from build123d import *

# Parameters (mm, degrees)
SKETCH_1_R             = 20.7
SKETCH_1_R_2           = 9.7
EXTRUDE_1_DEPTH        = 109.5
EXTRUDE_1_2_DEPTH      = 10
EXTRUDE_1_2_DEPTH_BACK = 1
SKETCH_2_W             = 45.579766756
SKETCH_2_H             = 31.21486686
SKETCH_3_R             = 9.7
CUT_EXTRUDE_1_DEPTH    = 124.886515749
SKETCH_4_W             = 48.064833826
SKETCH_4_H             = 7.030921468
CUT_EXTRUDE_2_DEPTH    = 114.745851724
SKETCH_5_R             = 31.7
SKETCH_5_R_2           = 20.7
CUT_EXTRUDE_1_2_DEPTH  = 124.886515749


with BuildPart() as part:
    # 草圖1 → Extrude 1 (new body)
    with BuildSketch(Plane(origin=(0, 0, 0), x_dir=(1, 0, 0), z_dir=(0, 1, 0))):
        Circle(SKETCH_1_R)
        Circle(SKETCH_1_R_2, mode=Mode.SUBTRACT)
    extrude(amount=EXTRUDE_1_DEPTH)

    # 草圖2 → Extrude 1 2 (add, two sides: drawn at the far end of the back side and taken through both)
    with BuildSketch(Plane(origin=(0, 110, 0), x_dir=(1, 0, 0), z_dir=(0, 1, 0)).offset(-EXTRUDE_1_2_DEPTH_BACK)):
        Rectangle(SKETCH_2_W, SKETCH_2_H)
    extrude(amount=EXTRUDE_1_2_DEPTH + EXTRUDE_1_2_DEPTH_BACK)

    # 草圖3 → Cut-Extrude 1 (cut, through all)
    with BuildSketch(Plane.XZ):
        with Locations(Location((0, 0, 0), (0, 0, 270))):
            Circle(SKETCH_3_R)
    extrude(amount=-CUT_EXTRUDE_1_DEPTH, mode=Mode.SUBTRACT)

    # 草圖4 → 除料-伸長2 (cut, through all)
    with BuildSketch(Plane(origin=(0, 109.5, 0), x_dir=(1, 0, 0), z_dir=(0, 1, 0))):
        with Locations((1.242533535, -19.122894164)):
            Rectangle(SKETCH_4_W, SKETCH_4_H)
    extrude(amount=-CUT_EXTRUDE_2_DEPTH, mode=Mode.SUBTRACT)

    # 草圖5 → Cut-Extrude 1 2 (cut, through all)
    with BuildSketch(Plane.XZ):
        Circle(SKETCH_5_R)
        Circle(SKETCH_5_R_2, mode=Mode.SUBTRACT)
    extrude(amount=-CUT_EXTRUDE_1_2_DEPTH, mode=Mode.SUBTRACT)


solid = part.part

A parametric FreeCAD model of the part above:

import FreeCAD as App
import Part
import Sketcher
from FreeCAD import Vector

doc = App.newDocument("Part")
body = doc.addObject("PartDesign::Body", "Body")

sketch1 = doc.addObject("Sketcher::SketchObject", "Sketch")
body.addObject(sketch1)
sketch1.AttachmentSupport = (doc.XZ_Plane, [""])
sketch1.MapMode = "FlatFace"
sketch1.addGeometry(Part.Circle(Vector(0, 0, 0), Vector(0, 0, 1), 21), False)
sketch1.addGeometry(Part.Circle(Vector(0, 0, 0), Vector(0, 0, 1), 10), False)
sketch1.addConstraint(Sketcher.Constraint("Coincident", 0, 3, -1, 1))
sketch1.addConstraint(Sketcher.Constraint("Coincident", 1, 3, -1, 1))
sketch1.addConstraint(Sketcher.Constraint("Diameter", 0, 41.4))
sketch1.addConstraint(Sketcher.Constraint("Diameter", 1, 19.4))
pad1 = doc.addObject("PartDesign::Pad", "Pad")
body.addObject(pad1)
pad1.Profile = sketch1
pad1.Length = 109.5
pad1.Reversed = True

sketch2 = doc.addObject("Sketcher::SketchObject", "Sketch001")
body.addObject(sketch2)
sketch2.AttachmentSupport = (doc.XZ_Plane, [""])
sketch2.MapMode = "FlatFace"
sketch2.AttachmentOffset = App.Placement(Vector(0, 0, -110), App.Rotation())
sketch2.addGeometry(Part.LineSegment(Vector(-23, -16, 0), Vector(-23, 16, 0)), False)
sketch2.addGeometry(Part.LineSegment(Vector(-23, 16, 0), Vector(23, 16, 0)), False)
sketch2.addGeometry(Part.LineSegment(Vector(23, 16, 0), Vector(23, -16, 0)), False)
sketch2.addGeometry(Part.LineSegment(Vector(23, -16, 0), Vector(-23, -16, 0)), False)
sketch2.addConstraint(Sketcher.Constraint("Coincident", 0, 2, 1, 1))
sketch2.addConstraint(Sketcher.Constraint("Coincident", 1, 2, 2, 1))
sketch2.addConstraint(Sketcher.Constraint("Coincident", 2, 2, 3, 1))
sketch2.addConstraint(Sketcher.Constraint("Coincident", 3, 2, 0, 1))
sketch2.addConstraint(Sketcher.Constraint("Vertical", 0))
sketch2.addConstraint(Sketcher.Constraint("Horizontal", 1))
sketch2.addConstraint(Sketcher.Constraint("Vertical", 2))
sketch2.addConstraint(Sketcher.Constraint("Horizontal", 3))
sketch2.addConstraint(Sketcher.Constraint("Symmetric", 0, 2, 2, 2, -1, 1))
sketch2.addConstraint(Sketcher.Constraint("DistanceX", 1, 1, 1, 2, 45.579767))
sketch2.addConstraint(Sketcher.Constraint("DistanceY", 0, 1, 0, 2, 31.214867))
pad2 = doc.addObject("PartDesign::Pad", "Pad001")
body.addObject(pad2)
pad2.Profile = sketch2
pad2.Type = "TwoLengths"
pad2.Length = 10
pad2.Length2 = 1
pad2.Reversed = True

sketch3 = doc.addObject("Sketcher::SketchObject", "Sketch002")
body.addObject(sketch3)
sketch3.AttachmentSupport = (doc.XZ_Plane, [""])
sketch3.MapMode = "FlatFace"
sketch3.addGeometry(Part.Circle(Vector(0, 0, 0), Vector(0, 0, 1), 10), False)
sketch3.addConstraint(Sketcher.Constraint("Coincident", 0, 3, -1, 1))
sketch3.addConstraint(Sketcher.Constraint("Diameter", 0, 19.4))
pocket1 = doc.addObject("PartDesign::Pocket", "Pocket")
body.addObject(pocket1)
pocket1.Profile = sketch3
pocket1.Type = "ThroughAll"

sketch4 = doc.addObject("Sketcher::SketchObject", "Sketch003")
body.addObject(sketch4)
sketch4.AttachmentSupport = (doc.XZ_Plane, [""])
sketch4.MapMode = "FlatFace"
sketch4.AttachmentOffset = App.Placement(Vector(0, 0, -109.5), App.Rotation())
sketch4.addGeometry(Part.LineSegment(Vector(-23, 16, 0), Vector(-23, 23, 0)), False)
sketch4.addGeometry(Part.LineSegment(Vector(-23, 23, 0), Vector(25, 23, 0)), False)
sketch4.addGeometry(Part.LineSegment(Vector(25, 23, 0), Vector(25, 16, 0)), False)
sketch4.addGeometry(Part.LineSegment(Vector(25, 16, 0), Vector(-23, 16, 0)), False)
sketch4.addConstraint(Sketcher.Constraint("Coincident", 0, 2, 1, 1))
sketch4.addConstraint(Sketcher.Constraint("Coincident", 1, 2, 2, 1))
sketch4.addConstraint(Sketcher.Constraint("Coincident", 2, 2, 3, 1))
sketch4.addConstraint(Sketcher.Constraint("Coincident", 3, 2, 0, 1))
sketch4.addConstraint(Sketcher.Constraint("Vertical", 0))
sketch4.addConstraint(Sketcher.Constraint("Horizontal", 1))
sketch4.addConstraint(Sketcher.Constraint("Vertical", 2))
sketch4.addConstraint(Sketcher.Constraint("Horizontal", 3))
sketch4.addConstraint(Sketcher.Constraint("DistanceY", 0, 1, 0, 2, 7.030921))
sketch4.addConstraint(Sketcher.Constraint("DistanceX", 1, 1, 1, 2, 48.064834))
sketch4.addConstraint(Sketcher.Constraint("DistanceX", -1, 1, 1, 2, 25.27495))
sketch4.addConstraint(Sketcher.Constraint("DistanceY", -1, 1, 0, 2, 22.638355))
pocket2 = doc.addObject("PartDesign::Pocket", "Pocket001")
body.addObject(pocket2)
pocket2.Profile = sketch4
pocket2.Type = "ThroughAll"
pocket2.Reversed = True

sketch5 = doc.addObject("Sketcher::SketchObject", "Sketch004")
body.addObject(sketch5)
sketch5.AttachmentSupport = (doc.XZ_Plane, [""])
sketch5.MapMode = "FlatFace"
sketch5.addGeometry(Part.Circle(Vector(0, 0, 0), Vector(0, 0, 1), 32), False)
sketch5.addGeometry(Part.Circle(Vector(0, 0, 0), Vector(0, 0, 1), 21), False)
sketch5.addConstraint(Sketcher.Constraint("Coincident", 0, 3, -1, 1))
sketch5.addConstraint(Sketcher.Constraint("Coincident", 1, 3, -1, 1))
sketch5.addConstraint(Sketcher.Constraint("Diameter", 0, 63.4))
sketch5.addConstraint(Sketcher.Constraint("Diameter", 1, 41.4))
pocket3 = doc.addObject("PartDesign::Pocket", "Pocket002")
body.addObject(pocket3)
pocket3.Profile = sketch5
pocket3.Type = "ThroughAll"

doc.recompute()
